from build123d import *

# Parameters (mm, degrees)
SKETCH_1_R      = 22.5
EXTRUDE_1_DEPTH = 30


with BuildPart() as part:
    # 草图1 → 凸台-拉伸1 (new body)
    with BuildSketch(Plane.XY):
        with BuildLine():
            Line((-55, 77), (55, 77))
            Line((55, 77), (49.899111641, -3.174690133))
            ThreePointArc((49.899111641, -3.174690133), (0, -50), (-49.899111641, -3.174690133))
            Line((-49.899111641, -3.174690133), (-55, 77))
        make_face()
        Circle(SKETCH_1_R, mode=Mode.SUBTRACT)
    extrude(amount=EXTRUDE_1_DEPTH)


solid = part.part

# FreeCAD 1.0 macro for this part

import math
import FreeCAD as App
import Part
import Sketcher

V = App.Vector

doc = App.newDocument("Part")
body = doc.addObject("PartDesign::Body", "Body")

sketch1 = body.newObject("Sketcher::SketchObject", "Sketch")
sketch1.AttachmentSupport = (doc.getObject("XY_Plane"), [""])
sketch1.MapMode = "FlatFace"
sketch1.addGeometry(Part.LineSegment(V(55, 77, 0), V(-55, 77, 0)), False)
sketch1.addGeometry(Part.LineSegment(V(-55, 77, 0), V(-50, -3, 0)), False)
sketch1.addGeometry(Part.ArcOfCircle(Part.Circle(V(0, 0, 0), V(0, 0, 1), 50), math.radians(-176), math.radians(-4)), False)
sketch1.addGeometry(Part.LineSegment(V(50, -3, 0), V(55, 77, 0)), False)
sketch1.addGeometry(Part.Circle(V(0, 0, 0), V(0, 0, 1), 22), False)
sketch1.addConstraint(Sketcher.Constraint("Coincident", 0, 2, 1, 1))
sketch1.addConstraint(Sketcher.Constraint("Tangent", 1, 2, 2, 1))
sketch1.addConstraint(Sketcher.Constraint("Tangent", 2, 2, 3, 1))
sketch1.addConstraint(Sketcher.Constraint("Coincident", 3, 2, 0, 1))
sketch1.addConstraint(Sketcher.Constraint("Horizontal", 0))
sketch1.addConstraint(Sketcher.Constraint("Coincident", 2, 3, -1, 1))
sketch1.addConstraint(Sketcher.Constraint("Coincident", 4, 3, -1, 1))
sketch1.addConstraint(Sketcher.Constraint("Horizontal", 1, 2, 2, 2))
sketch1.addConstraint(Sketcher.Constraint("Diameter", 4, 45.0))
sketch1.addConstraint(Sketcher.Constraint("Radius", 2, 50.0))
sketch1.addConstraint(Sketcher.Constraint("DistanceX", 0, 2, 0, 1, 110.0))
sketch1.addConstraint(Sketcher.Constraint("DistanceY", -1, 1, 0, 2, 77.0))
pad1 = body.newObject("PartDesign::Pad", "Pad")
pad1.Profile = sketch1
pad1.Length = 30

doc.recompute()
